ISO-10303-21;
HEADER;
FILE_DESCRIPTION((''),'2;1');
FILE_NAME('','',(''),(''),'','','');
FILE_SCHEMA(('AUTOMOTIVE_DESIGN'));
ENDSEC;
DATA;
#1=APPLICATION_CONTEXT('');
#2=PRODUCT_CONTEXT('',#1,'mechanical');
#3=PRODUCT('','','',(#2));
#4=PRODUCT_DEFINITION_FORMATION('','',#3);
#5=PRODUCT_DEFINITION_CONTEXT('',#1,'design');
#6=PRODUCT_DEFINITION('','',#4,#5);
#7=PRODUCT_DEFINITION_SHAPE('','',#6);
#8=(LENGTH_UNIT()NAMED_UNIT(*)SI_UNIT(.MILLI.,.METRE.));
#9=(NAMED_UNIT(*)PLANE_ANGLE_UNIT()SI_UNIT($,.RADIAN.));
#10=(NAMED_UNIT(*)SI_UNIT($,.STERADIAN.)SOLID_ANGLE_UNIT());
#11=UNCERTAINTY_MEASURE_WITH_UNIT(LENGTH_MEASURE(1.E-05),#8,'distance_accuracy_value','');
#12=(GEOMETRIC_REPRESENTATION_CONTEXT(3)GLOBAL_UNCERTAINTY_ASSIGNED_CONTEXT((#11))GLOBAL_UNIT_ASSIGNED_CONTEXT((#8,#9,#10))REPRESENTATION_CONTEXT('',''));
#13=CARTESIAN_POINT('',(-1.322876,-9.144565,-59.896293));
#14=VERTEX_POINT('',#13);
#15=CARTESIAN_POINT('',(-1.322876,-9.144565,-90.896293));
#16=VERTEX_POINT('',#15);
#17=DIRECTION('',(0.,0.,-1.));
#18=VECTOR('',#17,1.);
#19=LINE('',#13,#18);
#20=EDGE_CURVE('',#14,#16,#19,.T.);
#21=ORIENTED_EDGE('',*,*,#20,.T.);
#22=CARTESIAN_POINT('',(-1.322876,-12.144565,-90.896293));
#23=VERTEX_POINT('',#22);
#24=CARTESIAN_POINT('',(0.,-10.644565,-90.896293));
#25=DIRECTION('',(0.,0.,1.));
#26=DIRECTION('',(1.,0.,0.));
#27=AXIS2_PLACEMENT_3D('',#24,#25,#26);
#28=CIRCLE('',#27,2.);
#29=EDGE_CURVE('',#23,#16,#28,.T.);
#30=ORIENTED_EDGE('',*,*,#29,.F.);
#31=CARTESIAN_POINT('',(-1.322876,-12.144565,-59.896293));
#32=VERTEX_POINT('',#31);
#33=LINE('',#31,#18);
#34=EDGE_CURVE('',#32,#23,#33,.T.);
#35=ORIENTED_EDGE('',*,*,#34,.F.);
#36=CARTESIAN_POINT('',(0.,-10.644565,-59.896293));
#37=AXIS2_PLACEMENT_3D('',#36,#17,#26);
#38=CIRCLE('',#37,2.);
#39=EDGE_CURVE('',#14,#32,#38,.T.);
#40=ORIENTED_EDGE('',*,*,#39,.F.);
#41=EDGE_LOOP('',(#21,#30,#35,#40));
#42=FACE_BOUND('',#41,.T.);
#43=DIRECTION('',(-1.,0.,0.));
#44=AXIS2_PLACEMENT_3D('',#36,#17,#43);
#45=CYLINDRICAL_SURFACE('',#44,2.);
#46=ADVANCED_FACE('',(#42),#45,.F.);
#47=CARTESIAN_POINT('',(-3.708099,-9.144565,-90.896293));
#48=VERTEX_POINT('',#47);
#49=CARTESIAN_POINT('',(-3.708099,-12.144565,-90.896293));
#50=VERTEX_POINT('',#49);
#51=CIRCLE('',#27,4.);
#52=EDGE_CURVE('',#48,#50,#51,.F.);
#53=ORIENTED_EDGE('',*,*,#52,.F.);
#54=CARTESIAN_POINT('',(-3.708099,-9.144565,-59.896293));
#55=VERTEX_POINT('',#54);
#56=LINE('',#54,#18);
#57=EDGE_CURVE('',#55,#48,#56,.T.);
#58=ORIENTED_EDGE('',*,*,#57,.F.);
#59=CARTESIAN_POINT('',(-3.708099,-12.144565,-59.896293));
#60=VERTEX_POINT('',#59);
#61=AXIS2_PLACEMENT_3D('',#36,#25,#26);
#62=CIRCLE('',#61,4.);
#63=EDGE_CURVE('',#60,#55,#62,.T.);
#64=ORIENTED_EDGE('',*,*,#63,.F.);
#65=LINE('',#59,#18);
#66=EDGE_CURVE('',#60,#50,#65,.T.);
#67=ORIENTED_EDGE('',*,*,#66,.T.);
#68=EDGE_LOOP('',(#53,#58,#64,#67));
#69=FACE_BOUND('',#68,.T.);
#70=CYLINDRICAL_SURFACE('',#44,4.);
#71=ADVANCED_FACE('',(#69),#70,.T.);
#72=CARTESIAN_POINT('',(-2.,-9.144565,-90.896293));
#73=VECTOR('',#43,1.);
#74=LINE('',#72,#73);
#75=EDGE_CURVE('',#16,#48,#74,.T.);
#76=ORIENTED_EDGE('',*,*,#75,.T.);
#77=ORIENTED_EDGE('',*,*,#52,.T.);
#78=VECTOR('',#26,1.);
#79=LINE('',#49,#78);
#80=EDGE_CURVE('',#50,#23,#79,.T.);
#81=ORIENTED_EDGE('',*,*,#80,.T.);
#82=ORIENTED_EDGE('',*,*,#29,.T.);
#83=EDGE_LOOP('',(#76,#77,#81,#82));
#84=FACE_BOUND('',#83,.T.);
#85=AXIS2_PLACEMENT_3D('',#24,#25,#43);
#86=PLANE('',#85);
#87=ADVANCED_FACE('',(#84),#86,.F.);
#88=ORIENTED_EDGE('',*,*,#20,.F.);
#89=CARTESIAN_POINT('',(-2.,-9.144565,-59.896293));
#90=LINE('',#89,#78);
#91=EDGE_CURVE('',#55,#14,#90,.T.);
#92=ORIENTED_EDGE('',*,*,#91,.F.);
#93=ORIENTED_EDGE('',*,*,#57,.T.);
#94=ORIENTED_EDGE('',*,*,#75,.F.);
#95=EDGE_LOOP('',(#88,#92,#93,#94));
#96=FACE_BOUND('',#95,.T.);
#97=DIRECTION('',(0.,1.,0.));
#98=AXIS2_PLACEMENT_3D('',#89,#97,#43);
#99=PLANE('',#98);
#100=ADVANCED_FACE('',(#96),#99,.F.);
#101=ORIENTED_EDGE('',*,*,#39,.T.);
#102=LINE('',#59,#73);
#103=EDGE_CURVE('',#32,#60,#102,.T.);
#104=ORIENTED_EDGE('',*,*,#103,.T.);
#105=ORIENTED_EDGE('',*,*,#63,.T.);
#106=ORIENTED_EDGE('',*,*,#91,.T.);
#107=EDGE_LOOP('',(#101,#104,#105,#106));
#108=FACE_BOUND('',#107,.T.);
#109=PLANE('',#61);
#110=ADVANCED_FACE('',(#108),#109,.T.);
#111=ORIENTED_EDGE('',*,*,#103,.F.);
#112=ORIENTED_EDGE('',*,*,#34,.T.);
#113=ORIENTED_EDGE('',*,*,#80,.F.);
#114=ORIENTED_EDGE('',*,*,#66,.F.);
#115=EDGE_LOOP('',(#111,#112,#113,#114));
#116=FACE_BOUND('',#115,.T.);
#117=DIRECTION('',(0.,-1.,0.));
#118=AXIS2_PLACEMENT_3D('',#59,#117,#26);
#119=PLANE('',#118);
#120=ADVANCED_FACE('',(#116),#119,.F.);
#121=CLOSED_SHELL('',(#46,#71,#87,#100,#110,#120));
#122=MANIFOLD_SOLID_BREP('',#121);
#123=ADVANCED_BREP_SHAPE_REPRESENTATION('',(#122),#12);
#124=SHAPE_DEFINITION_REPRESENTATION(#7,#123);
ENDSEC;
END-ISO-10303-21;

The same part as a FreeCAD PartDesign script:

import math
import FreeCAD as App
import Part
import Sketcher
Q = App.Units.Quantity

doc = App.newDocument("Part")
body = doc.addObject("PartDesign::Body", "Body")

sketch1 = body.newObject("Sketcher::SketchObject", "Sketch")
sketch1.AttachmentSupport = (doc.getObject("XY_Plane"), [""])
sketch1.MapMode = "FlatFace"
sketch1.AttachmentOffset = App.Placement(App.Vector(0, 0, -64.896293), App.Rotation())
sketch1.addGeometry([
    Part.LineSegment(App.Vector(-1.3, -12.1, 0), App.Vector(-3.7, -12.1, 0)),
    Part.ArcOfCircle(Part.Circle(App.Vector(0, -10.6, 0), App.Vector(0, 0, 1), 4), math.radians(-158), math.radians(158)),
    Part.LineSegment(App.Vector(-3.7, -9.1, 0), App.Vector(-1.3, -9.1, 0)),
    Part.ArcOfCircle(Part.Circle(App.Vector(0, -10.6, 0), App.Vector(0, 0, 1), 2), math.radians(-131), math.radians(131)),
], False)
sketch1.addConstraint([
    Sketcher.Constraint("Coincident", 0, 2, 1, 1),
    Sketcher.Constraint("Coincident", 1, 2, 2, 1),
    Sketcher.Constraint("Coincident", 2, 2, 3, 2),
    Sketcher.Constraint("Coincident", 3, 1, 0, 1),
    Sketcher.Constraint("Horizontal", 0),
    Sketcher.Constraint("Horizontal", 2),
    Sketcher.Constraint("Coincident", 3, 3, 1, 3),
    Sketcher.Constraint("PointOnObject", 1, 3, -2),
    Sketcher.Constraint("Vertical", 0, 2, 1, 2),
    Sketcher.Constraint("Radius", 1, Q("4 mm")),
    Sketcher.Constraint("Radius", 3, Q("2 mm")),
    Sketcher.Constraint("DistanceY", 0, 2, 1, 2, Q("3 mm")),
    Sketcher.Constraint("DistanceY", 1, 3, -1, 1, Q("10.644565 mm")),
])
pad1 = body.newObject("PartDesign::Pad", "Pad")
pad1.Profile = sketch1
pad1.Type = "TwoLengths"
pad1.Length = 5
pad1.Length2 = 26

doc.recompute()
